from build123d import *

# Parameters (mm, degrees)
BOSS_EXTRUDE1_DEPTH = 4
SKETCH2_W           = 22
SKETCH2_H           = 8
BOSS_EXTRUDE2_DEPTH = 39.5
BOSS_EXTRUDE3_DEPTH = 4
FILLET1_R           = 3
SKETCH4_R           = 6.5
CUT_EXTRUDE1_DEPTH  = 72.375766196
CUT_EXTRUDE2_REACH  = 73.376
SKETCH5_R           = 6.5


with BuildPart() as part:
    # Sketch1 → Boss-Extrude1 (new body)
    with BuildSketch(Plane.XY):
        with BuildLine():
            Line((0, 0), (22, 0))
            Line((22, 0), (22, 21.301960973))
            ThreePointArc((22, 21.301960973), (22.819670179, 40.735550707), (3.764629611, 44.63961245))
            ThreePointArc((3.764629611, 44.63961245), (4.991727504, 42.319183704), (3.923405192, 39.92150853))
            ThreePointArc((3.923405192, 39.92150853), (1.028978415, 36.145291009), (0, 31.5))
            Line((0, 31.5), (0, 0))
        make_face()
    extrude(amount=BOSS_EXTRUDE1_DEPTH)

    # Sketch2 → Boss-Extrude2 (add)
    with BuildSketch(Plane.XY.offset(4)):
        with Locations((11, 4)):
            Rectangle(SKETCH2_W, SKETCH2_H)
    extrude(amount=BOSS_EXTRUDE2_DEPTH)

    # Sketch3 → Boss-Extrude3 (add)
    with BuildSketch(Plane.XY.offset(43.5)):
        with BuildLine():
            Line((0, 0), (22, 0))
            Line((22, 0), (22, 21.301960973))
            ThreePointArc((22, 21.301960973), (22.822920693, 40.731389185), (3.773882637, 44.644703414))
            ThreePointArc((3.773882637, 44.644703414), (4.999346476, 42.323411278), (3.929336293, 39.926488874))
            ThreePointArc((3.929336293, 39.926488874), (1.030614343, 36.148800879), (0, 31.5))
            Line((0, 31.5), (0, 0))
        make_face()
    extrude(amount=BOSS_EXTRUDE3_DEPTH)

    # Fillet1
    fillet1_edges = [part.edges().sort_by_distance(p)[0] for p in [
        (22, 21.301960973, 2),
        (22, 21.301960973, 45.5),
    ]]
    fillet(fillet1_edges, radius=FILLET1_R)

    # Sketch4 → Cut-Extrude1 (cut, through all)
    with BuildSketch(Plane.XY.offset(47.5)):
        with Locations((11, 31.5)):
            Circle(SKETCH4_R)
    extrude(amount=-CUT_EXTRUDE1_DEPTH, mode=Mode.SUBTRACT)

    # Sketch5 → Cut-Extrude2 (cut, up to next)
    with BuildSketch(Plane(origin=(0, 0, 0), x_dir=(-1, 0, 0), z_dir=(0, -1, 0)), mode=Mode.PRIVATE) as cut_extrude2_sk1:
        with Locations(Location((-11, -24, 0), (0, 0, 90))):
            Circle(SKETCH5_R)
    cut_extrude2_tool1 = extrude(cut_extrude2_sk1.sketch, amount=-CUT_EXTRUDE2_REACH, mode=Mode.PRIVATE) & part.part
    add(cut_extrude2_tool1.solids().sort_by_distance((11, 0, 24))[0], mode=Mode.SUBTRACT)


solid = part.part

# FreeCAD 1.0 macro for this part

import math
import FreeCAD as App
import Part
import Sketcher

V = App.Vector


def edges_at(feature, points):
    """Names of the edges that pass closest to the given points."""
    edges = feature.Shape.Edges
    near = lambda p: min(range(len(edges)), key=lambda i: edges[i].distToShape(Part.Vertex(*p))[0])
    return sorted({f"Edge{near(p) + 1}" for p in points})

doc = App.newDocument("Part")
params = doc.addObject("Spreadsheet::Sheet", "Params")
for row, (alias, value) in enumerate([
    ("sketch1_radius", "15 mm"),
    ("sketch1_radius2", "3 mm"),
    ("sketch1_radius3", "11 mm"),
    ("sketch1_width", "22 mm"),
    ("sketch1_height", "31.5 mm"),
    ("pad1_length", "4 mm"),
    ("sketch2_width", "22 mm"),
    ("sketch2_height", "8 mm"),
    ("pad2_length", "39.5 mm"),
    ("sketch3_radius", "15 mm"),
    ("sketch3_radius2", "3 mm"),
    ("sketch3_radius3", "11 mm"),
    ("sketch3_width", "22 mm"),
    ("sketch3_height", "31.5 mm"),
    ("pad3_length", "4 mm"),
    ("fillet_radius", "3 mm"),
    ("sketch4_diameter", "13 mm"),
    ("sketch5_diameter", "13 mm"),
], start=1):
    params.set(f"A{row}", alias)
    params.set(f"B{row}", "=" + value)
    params.setAlias(f"B{row}", alias)

body = doc.addObject("PartDesign::Body", "Body")

sketch1 = doc.addObject("Sketcher::SketchObject", "Sketch")
body.addObject(sketch1)
sketch1.AttachmentSupport = (doc.XY_Plane, [""])
sketch1.MapMode = "FlatFace"
sketch1.addGeometry([
    Part.LineSegment(V(0, 0, 0), V(22, 0, 0)),
    Part.LineSegment(V(22, 0, 0), V(22, 21.301961, 0)),
    Part.ArcOfCircle(Part.Circle(V(11, 31.5, 0), V(0, 0, 1), 15), math.radians(-42.833428), math.radians(118.839522)),
    Part.ArcOfCircle(Part.Circle(V(1.993425, 42.218284, 0), V(0, 0, 1), 3), math.radians(-49.95966), math.radians(53.814487)),
    Part.ArcOfCircle(Part.Circle(V(11, 31.5, 0), V(0, 0, 1), 11), math.radians(130.04034), math.radians(180)),
    Part.LineSegment(V(0, 31.5, 0), V(0, 0, 0)),
], False)
sketch1.addConstraint([
    Sketcher.Constraint("Coincident", 0, 2, 1, 1),
    Sketcher.Constraint("Coincident", 1, 2, 2, 1),
    Sketcher.Constraint("Coincident", 2, 2, 3, 2),
    Sketcher.Constraint("Tangent", 3, 1, 4, 1),
    Sketcher.Constraint("Tangent", 4, 2, 5, 1),
    Sketcher.Constraint("Coincident", 5, 2, 0, 1),
    Sketcher.Constraint("Horizontal", 0),
    Sketcher.Constraint("Vertical", 1),
    Sketcher.Constraint("Vertical", 5),
    Sketcher.Constraint("Coincident", 5, 2, -1, 1),
    Sketcher.Constraint("Coincident", 4, 3, 2, 3),
    Sketcher.Constraint("Radius", 2, 15.0),
    Sketcher.Constraint("Radius", 3, 3.0),
    Sketcher.Constraint("Radius", 4, 11.0),
    Sketcher.Constraint("DistanceX", 0, 1, 0, 2, 22.0),
    Sketcher.Constraint("DistanceY", 5, 2, 5, 1, 31.5),
    Sketcher.Constraint("DistanceX", -1, 1, 2, 2, 3.76463),
])
sketch1.setExpression("Constraints[11]", "Params.sketch1_radius")
sketch1.setExpression("Constraints[12]", "Params.sketch1_radius2")
sketch1.setExpression("Constraints[13]", "Params.sketch1_radius3")
sketch1.setExpression("Constraints[14]", "Params.sketch1_width")
sketch1.setExpression("Constraints[15]", "Params.sketch1_height")
pad1 = doc.addObject("PartDesign::Pad", "Pad")
body.addObject(pad1)
pad1.Profile = sketch1
pad1.setExpression("Length", "Params.pad1_length")

sketch2 = doc.addObject("Sketcher::SketchObject", "Sketch001")
body.addObject(sketch2)
sketch2.AttachmentSupport = (doc.XY_Plane, [""])
sketch2.MapMode = "FlatFace"
sketch2.AttachmentOffset = App.Placement(V(0, 0, 4), App.Rotation())
sketch2.addGeometry([
    Part.LineSegment(V(0, 8, 0), V(0, 0, 0)),
    Part.LineSegment(V(0, 0, 0), V(22, 0, 0)),
    Part.LineSegment(V(22, 0, 0), V(22, 8, 0)),
    Part.LineSegment(V(22, 8, 0), V(0, 8, 0)),
], False)
sketch2.addConstraint([
    Sketcher.Constraint("Coincident", 0, 2, 1, 1),
    Sketcher.Constraint("Coincident", 1, 2, 2, 1),
    Sketcher.Constraint("Coincident", 2, 2, 3, 1),
    Sketcher.Constraint("Coincident", 3, 2, 0, 1),
    Sketcher.Constraint("Vertical", 0),
    Sketcher.Constraint("Horizontal", 1),
    Sketcher.Constraint("Vertical", 2),
    Sketcher.Constraint("Horizontal", 3),
    Sketcher.Constraint("Coincident", 0, 2, -1, 1),
    Sketcher.Constraint("DistanceX", 1, 1, 1, 2, 22.0),
    Sketcher.Constraint("DistanceY", 0, 2, 0, 1, 8.0),
])
sketch2.setExpression("Constraints[9]", "Params.sketch2_width")
sketch2.setExpression("Constraints[10]", "Params.sketch2_height")
pad2 = doc.addObject("PartDesign::Pad", "Pad001")
body.addObject(pad2)
pad2.Profile = sketch2
pad2.setExpression("Length", "Params.pad2_length")

sketch3 = doc.addObject("Sketcher::SketchObject", "Sketch002")
body.addObject(sketch3)
sketch3.AttachmentSupport = (doc.XY_Plane, [""])
sketch3.MapMode = "FlatFace"
sketch3.AttachmentOffset = App.Placement(V(0, 0, 43.5), App.Rotation())
sketch3.addGeometry([
    Part.LineSegment(V(0, 0, 0), V(22, 0, 0)),
    Part.LineSegment(V(22, 0, 0), V(22, 21.301961, 0)),
    Part.ArcOfCircle(Part.Circle(V(11, 31.5, 0), V(0, 0, 1), 15), math.radians(-42.833428), math.radians(118.799182)),
    Part.ArcOfCircle(Part.Circle(V(2.000973, 42.224622, 0), V(0, 0, 1), 3), math.radians(-50), math.radians(53.774147)),
    Part.ArcOfCircle(Part.Circle(V(11, 31.5, 0), V(0, 0, 1), 11), math.radians(130), math.radians(180)),
    Part.LineSegment(V(0, 31.5, 0), V(0, 0, 0)),
], False)
sketch3.addConstraint([
    Sketcher.Constraint("Coincident", 0, 2, 1, 1),
    Sketcher.Constraint("Coincident", 1, 2, 2, 1),
    Sketcher.Constraint("Coincident", 2, 2, 3, 2),
    Sketcher.Constraint("Tangent", 3, 1, 4, 1),
    Sketcher.Constraint("Tangent", 4, 2, 5, 1),
    Sketcher.Constraint("Coincident", 5, 2, 0, 1),
    Sketcher.Constraint("Horizontal", 0),
    Sketcher.Constraint("Vertical", 1),
    Sketcher.Constraint("Vertical", 5),
    Sketcher.Constraint("Coincident", 5, 2, -1, 1),
    Sketcher.Constraint("Coincident", 4, 3, 2, 3),
    Sketcher.Constraint("Radius", 2, 15.0),
    Sketcher.Constraint("Radius", 3, 3.0),
    Sketcher.Constraint("Radius", 4, 11.0),
    Sketcher.Constraint("DistanceX", 0, 1, 0, 2, 22.0),
    Sketcher.Constraint("DistanceY", 5, 2, 5, 1, 31.5),
    Sketcher.Constraint("DistanceY", -1, 1, 3, 1, 39.926489),
])
sketch3.setExpression("Constraints[11]", "Params.sketch3_radius")
sketch3.setExpression("Constraints[12]", "Params.sketch3_radius2")
sketch3.setExpression("Constraints[13]", "Params.sketch3_radius3")
sketch3.setExpression("Constraints[14]", "Params.sketch3_width")
sketch3.setExpression("Constraints[15]", "Params.sketch3_height")
pad3 = doc.addObject("PartDesign::Pad", "Pad002")
body.addObject(pad3)
pad3.Profile = sketch3
pad3.setExpression("Length", "Params.pad3_length")
doc.recompute()

fillet = doc.addObject("PartDesign::Fillet", "Fillet")
body.addObject(fillet)
fillet.Base = (pad3, edges_at(pad3, [(22, 21.302, 2), (22, 21.302, 45.5)]))
fillet.setExpression("Radius", "Params.fillet_radius")

sketch4 = doc.addObject("Sketcher::SketchObject", "Sketch003")
body.addObject(sketch4)
sketch4.AttachmentSupport = (doc.XY_Plane, [""])
sketch4.MapMode = "FlatFace"
sketch4.AttachmentOffset = App.Placement(V(0, 0, 47.5), App.Rotation())
sketch4.addGeometry(Part.Circle(V(11, 31.5, 0), V(0, 0, 1), 6.5), False)
sketch4.addConstraint([
    Sketcher.Constraint("Diameter", 0, 13.0),
    Sketcher.Constraint("DistanceX", -1, 1, 0, 3, 11.0),
    Sketcher.Constraint("DistanceY", -1, 1, 0, 3, 31.5),
])
sketch4.setExpression("Constraints[0]", "Params.sketch4_diameter")
pocket1 = doc.addObject("PartDesign::Pocket", "Pocket")
body.addObject(pocket1)
pocket1.Profile = sketch4
pocket1.Type = "ThroughAll"

sketch5 = doc.addObject("Sketcher::SketchObject", "Sketch004")
body.addObject(sketch5)
sketch5.AttachmentSupport = (doc.XZ_Plane, [""])
sketch5.MapMode = "FlatFace"
sketch5.addGeometry(Part.Circle(V(11, 24, 0), V(0, 0, 1), 6.5), False)
sketch5.addConstraint([
    Sketcher.Constraint("Diameter", 0, 13.0),
    Sketcher.Constraint("DistanceX", -1, 1, 0, 3, 11.0),
    Sketcher.Constraint("DistanceY", -1, 1, 0, 3, 24.0),
])
sketch5.setExpression("Constraints[0]", "Params.sketch5_diameter")
pocket2 = doc.addObject("PartDesign::Pocket", "Pocket001")
body.addObject(pocket2)
pocket2.Profile = sketch5
pocket2.Type = "UpToFirst"

doc.recompute()
